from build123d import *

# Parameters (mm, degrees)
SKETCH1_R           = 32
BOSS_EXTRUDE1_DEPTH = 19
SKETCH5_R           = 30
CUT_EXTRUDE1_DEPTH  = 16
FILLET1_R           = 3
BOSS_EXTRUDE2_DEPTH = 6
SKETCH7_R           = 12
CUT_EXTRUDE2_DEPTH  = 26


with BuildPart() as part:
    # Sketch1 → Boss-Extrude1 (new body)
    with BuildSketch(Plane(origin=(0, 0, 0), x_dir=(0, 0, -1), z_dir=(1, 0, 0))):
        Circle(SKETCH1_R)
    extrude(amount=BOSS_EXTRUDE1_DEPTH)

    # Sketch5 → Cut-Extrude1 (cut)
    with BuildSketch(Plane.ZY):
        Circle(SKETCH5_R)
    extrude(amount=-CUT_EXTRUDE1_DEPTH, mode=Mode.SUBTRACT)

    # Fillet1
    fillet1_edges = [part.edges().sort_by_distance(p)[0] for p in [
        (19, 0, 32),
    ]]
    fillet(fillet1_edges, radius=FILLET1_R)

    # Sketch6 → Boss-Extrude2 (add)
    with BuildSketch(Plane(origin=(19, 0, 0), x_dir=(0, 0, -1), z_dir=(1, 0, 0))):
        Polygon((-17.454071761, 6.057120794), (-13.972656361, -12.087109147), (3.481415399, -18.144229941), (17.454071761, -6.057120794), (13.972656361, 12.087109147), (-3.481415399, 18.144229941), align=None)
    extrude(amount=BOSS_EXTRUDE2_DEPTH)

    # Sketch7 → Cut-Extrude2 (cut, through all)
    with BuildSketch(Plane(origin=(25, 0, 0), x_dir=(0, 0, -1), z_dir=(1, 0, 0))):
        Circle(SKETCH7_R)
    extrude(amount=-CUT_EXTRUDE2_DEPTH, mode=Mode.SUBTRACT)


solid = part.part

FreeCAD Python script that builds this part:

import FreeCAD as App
import Part
import Sketcher

V = App.Vector


def edges_at(feature, points):
    """Names of the edges that pass closest to the given points."""
    edges = feature.Shape.Edges
    near = lambda p: min(range(len(edges)), key=lambda i: edges[i].distToShape(Part.Vertex(*p))[0])
    return sorted({f"Edge{near(p) + 1}" for p in points})

doc = App.newDocument("Part")
params = doc.addObject("Spreadsheet::Sheet", "Params")
for row, (alias, value) in enumerate([
    ("sketch1_diameter", "64 mm"),
    ("pad1_length", "19 mm"),
    ("sketch2_diameter", "60 mm"),
    ("pocket1_length", "16 mm"),
    ("fillet_radius", "3 mm"),
    ("pad2_length", "6 mm"),
    ("sketch4_diameter", "24 mm"),
], start=1):
    params.set(f"A{row}", alias)
    params.set(f"B{row}", "=" + value)
    params.setAlias(f"B{row}", alias)

body = doc.addObject("PartDesign::Body", "Body")

sketch1 = body.newObject("Sketcher::SketchObject", "Sketch")
sketch1.AttachmentSupport = (doc.getObject("YZ_Plane"), [""])
sketch1.MapMode = "FlatFace"
sketch1.addGeometry(Part.Circle(V(0, 0, 0), V(0, 0, 1), 32), False)
sketch1.addConstraint([
    Sketcher.Constraint("Coincident", 0, 3, -1, 1),
    Sketcher.Constraint("Diameter", 0, 64.0),
])
sketch1.setExpression("Constraints[1]", "Params.sketch1_diameter")
pad1 = body.newObject("PartDesign::Pad", "Pad")
pad1.Profile = sketch1
pad1.setExpression("Length", "Params.pad1_length")

sketch2 = body.newObject("Sketcher::SketchObject", "Sketch001")
sketch2.AttachmentSupport = (doc.getObject("YZ_Plane"), [""])
sketch2.MapMode = "FlatFace"
sketch2.addGeometry(Part.Circle(V(0, 0, 0), V(0, 0, 1), 30), False)
sketch2.addConstraint([
    Sketcher.Constraint("Coincident", 0, 3, -1, 1),
    Sketcher.Constraint("Diameter", 0, 60.0),
])
sketch2.setExpression("Constraints[1]", "Params.sketch2_diameter")
pocket1 = body.newObject("PartDesign::Pocket", "Pocket")
pocket1.Profile = sketch2
pocket1.setExpression("Length", "Params.pocket1_length")
pocket1.Reversed = True
doc.recompute()

fillet = body.newObject("PartDesign::Fillet", "Fillet")
fillet.Base = (pocket1, edges_at(pocket1, [(19, 0, 32)]))
fillet.setExpression("Radius", "Params.fillet_radius")

sketch3 = body.newObject("Sketcher::SketchObject", "Sketch002")
sketch3.AttachmentSupport = (doc.getObject("YZ_Plane"), [""])
sketch3.MapMode = "FlatFace"
sketch3.AttachmentOffset = App.Placement(V(0, 0, 19), App.Rotation())
sketch3.addGeometry([
    Part.LineSegment(V(6, 17, 0), V(-12, 14, 0)),
    Part.LineSegment(V(-12, 14, 0), V(-18, -3, 0)),
    Part.LineSegment(V(-18, -3, 0), V(-6, -17, 0)),
    Part.LineSegment(V(-6, -17, 0), V(12, -14, 0)),
    Part.LineSegment(V(12, -14, 0), V(18, 3, 0)),
    Part.LineSegment(V(18, 3, 0), V(6, 17, 0)),
], False)
sketch3.addConstraint([
    Sketcher.Constraint("Coincident", 0, 2, 1, 1),
    Sketcher.Constraint("Coincident", 1, 2, 2, 1),
    Sketcher.Constraint("Coincident", 2, 2, 3, 1),
    Sketcher.Constraint("Coincident", 3, 2, 4, 1),
    Sketcher.Constraint("Coincident", 4, 2, 5, 1),
    Sketcher.Constraint("Coincident", 5, 2, 0, 1),
    Sketcher.Constraint("Symmetric", 0, 2, 3, 2, -1, 1),
    Sketcher.Constraint("Symmetric", 1, 2, 4, 2, -1, 1),
    Sketcher.Constraint("Symmetric", 2, 2, 5, 2, -1, 1),
    Sketcher.Constraint("Equal", 0, 1),
    Sketcher.Constraint("Equal", 1, 2),
    Sketcher.Constraint("Distance", 0, 18.475209),
    Sketcher.Constraint("DistanceX", 0, 2, -1, 1, 12.087109),
    Sketcher.Constraint("DistanceX", 1, 2, -1, 1, 18.14423),
    Sketcher.Constraint("DistanceX", 2, 2, -1, 1, 6.057121),
])
pad2 = body.newObject("PartDesign::Pad", "Pad001")
pad2.Profile = sketch3
pad2.setExpression("Length", "Params.pad2_length")

sketch4 = body.newObject("Sketcher::SketchObject", "Sketch003")
sketch4.AttachmentSupport = (doc.getObject("YZ_Plane"), [""])
sketch4.MapMode = "FlatFace"
sketch4.AttachmentOffset = App.Placement(V(0, 0, 25), App.Rotation())
sketch4.addGeometry(Part.Circle(V(0, 0, 0), V(0, 0, 1), 12), False)
sketch4.addConstraint([
    Sketcher.Constraint("Coincident", 0, 3, -1, 1),
    Sketcher.Constraint("Diameter", 0, 24.0),
])
sketch4.setExpression("Constraints[1]", "Params.sketch4_diameter")
pocket2 = body.newObject("PartDesign::Pocket", "Pocket001")
pocket2.Profile = sketch4
pocket2.Type = "ThroughAll"

doc.recompute()
